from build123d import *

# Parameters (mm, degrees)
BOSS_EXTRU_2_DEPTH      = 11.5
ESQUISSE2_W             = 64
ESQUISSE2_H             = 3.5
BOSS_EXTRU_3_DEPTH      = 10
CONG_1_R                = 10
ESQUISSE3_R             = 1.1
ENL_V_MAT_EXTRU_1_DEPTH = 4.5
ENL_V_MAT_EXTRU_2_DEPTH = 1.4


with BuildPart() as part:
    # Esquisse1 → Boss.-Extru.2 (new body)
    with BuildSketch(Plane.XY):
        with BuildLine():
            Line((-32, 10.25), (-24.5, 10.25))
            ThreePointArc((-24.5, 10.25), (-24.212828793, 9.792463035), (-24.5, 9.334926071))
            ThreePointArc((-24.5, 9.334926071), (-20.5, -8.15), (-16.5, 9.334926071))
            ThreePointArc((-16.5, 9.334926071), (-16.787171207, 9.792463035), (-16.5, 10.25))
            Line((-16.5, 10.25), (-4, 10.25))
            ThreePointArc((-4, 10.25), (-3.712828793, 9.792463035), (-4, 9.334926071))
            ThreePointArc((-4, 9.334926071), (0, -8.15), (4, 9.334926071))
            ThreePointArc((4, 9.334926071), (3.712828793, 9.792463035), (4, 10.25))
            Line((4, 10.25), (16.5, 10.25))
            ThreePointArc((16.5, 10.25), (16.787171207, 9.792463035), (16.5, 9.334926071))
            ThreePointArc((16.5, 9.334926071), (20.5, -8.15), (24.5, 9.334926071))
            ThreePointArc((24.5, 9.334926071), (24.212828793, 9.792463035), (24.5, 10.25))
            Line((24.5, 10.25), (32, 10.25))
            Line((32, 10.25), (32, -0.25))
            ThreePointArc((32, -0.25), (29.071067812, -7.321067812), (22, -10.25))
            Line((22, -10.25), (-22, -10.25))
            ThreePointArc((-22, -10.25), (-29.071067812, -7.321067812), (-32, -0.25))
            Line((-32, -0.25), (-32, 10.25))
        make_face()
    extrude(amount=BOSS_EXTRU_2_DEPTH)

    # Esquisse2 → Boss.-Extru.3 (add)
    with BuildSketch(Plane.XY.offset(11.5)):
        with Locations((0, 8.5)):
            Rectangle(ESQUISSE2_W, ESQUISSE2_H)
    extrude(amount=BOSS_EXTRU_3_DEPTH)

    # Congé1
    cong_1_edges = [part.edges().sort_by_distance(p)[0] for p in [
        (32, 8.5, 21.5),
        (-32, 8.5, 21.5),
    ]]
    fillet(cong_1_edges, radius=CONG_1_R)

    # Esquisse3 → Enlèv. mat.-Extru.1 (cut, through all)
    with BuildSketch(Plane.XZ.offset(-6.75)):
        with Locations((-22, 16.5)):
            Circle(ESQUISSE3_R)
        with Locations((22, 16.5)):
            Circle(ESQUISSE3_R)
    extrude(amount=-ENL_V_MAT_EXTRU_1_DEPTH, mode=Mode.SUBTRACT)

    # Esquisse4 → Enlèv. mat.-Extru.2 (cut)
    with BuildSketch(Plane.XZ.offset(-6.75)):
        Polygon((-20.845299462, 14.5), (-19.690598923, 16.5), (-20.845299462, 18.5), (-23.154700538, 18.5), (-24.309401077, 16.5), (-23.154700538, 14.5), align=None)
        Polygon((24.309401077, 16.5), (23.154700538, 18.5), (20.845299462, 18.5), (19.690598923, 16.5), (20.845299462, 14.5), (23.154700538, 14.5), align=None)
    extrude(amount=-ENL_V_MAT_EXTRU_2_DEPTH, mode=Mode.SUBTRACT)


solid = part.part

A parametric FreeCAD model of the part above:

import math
import FreeCAD as App
import Part
import Sketcher

V = App.Vector
Q = App.Units.Quantity


def edges_at(feature, points):
    """Names of the edges that pass closest to the given points."""
    edges = feature.Shape.Edges
    near = lambda p: min(range(len(edges)), key=lambda i: edges[i].distToShape(Part.Vertex(*p))[0])
    return sorted({f"Edge{near(p) + 1}" for p in points})


def add_polygon(sketch, points):
    """Adds a closed chain of lines whose ends are joined by coincident constraints."""
    first, n = sketch.GeometryCount, len(points)
    for a, b in zip(points, points[1:] + points[:1]):
        sketch.addGeometry(Part.LineSegment(App.Vector(*a, 0), App.Vector(*b, 0)), False)
    for i in range(n):
        sketch.addConstraint(Sketcher.Constraint("Coincident", first + i, 2, first + (i + 1) % n, 1))

doc = App.newDocument("Part")
body = doc.addObject("PartDesign::Body", "Body")

sketch1 = body.newObject("Sketcher::SketchObject", "Sketch")
sketch1.AttachmentSupport = (doc.getObject("XY_Plane"), [""])
sketch1.MapMode = "FlatFace"
sketch1.addGeometry([
    Part.LineSegment(V(-24.5, 10.25, 0), V(-32, 10.25, 0)),
    Part.LineSegment(V(-32, 10.25, 0), V(-32, -0.25, 0)),
    Part.ArcOfCircle(Part.Circle(V(-22, -0.25, 0), V(0, 0, 1), 10), math.radians(180), math.radians(270)),
    Part.LineSegment(V(-22, -10.25, 0), V(22, -10.25, 0)),
    Part.ArcOfCircle(Part.Circle(V(22, -0.25, 0), V(0, 0, 1), 10), math.radians(-90), math.radians(0)),
    Part.LineSegment(V(32, -0.25, 0), V(32, 10.25, 0)),
    Part.LineSegment(V(32, 10.25, 0), V(24.5, 10.25, 0)),
    Part.ArcOfCircle(Part.Circle(V(24.720901, 9.792463, 0), V(0, 0, 1), 0.508072), math.radians(115.771462), math.radians(244.228538)),
    Part.ArcOfCircle(Part.Circle(V(20.5, 1.05, 0), V(0, 0, 1), 9.2), math.radians(115.771462), math.radians(424.228538)),
    Part.ArcOfCircle(Part.Circle(V(16.279099, 9.792463, 0), V(0, 0, 1), 0.508072), math.radians(-64.228538), math.radians(64.228538)),
    Part.LineSegment(V(16.5, 10.25, 0), V(4, 10.25, 0)),
    Part.ArcOfCircle(Part.Circle(V(4.220901, 9.792463, 0), V(0, 0, 1), 0.508072), math.radians(115.771462), math.radians(244.228538)),
    Part.ArcOfCircle(Part.Circle(V(0, 1.05, 0), V(0, 0, 1), 9.2), math.radians(115.771462), math.radians(424.228538)),
    Part.ArcOfCircle(Part.Circle(V(-4.220901, 9.792463, 0), V(0, 0, 1), 0.508072), math.radians(-64.228538), math.radians(64.228538)),
    Part.LineSegment(V(-4, 10.25, 0), V(-16.5, 10.25, 0)),
    Part.ArcOfCircle(Part.Circle(V(-16.279099, 9.792463, 0), V(0, 0, 1), 0.508072), math.radians(115.771462), math.radians(244.228538)),
    Part.ArcOfCircle(Part.Circle(V(-20.5, 1.05, 0), V(0, 0, 1), 9.2), math.radians(115.771462), math.radians(424.228538)),
    Part.ArcOfCircle(Part.Circle(V(-24.720901, 9.792463, 0), V(0, 0, 1), 0.508072), math.radians(-64.228538), math.radians(64.228538)),
], False)
sketch1.addConstraint([
    Sketcher.Constraint("Coincident", 0, 2, 1, 1),
    Sketcher.Constraint("Tangent", 1, 2, 2, 1),
    Sketcher.Constraint("Tangent", 2, 2, 3, 1),
    Sketcher.Constraint("Tangent", 3, 2, 4, 1),
    Sketcher.Constraint("Tangent", 4, 2, 5, 1),
    Sketcher.Constraint("Coincident", 5, 2, 6, 1),
    Sketcher.Constraint("Coincident", 6, 2, 7, 1),
    Sketcher.Constraint("Tangent", 7, 2, 8, 2),
    Sketcher.Constraint("Tangent", 8, 1, 9, 1),
    Sketcher.Constraint("Coincident", 9, 2, 10, 1),
    Sketcher.Constraint("Coincident", 10, 2, 11, 1),
    Sketcher.Constraint("Tangent", 11, 2, 12, 2),
    Sketcher.Constraint("Tangent", 12, 1, 13, 1),
    Sketcher.Constraint("Coincident", 13, 2, 14, 1),
    Sketcher.Constraint("Coincident", 14, 2, 15, 1),
    Sketcher.Constraint("Tangent", 15, 2, 16, 2),
    Sketcher.Constraint("Tangent", 16, 1, 17, 1),
    Sketcher.Constraint("Coincident", 17, 2, 0, 1),
    Sketcher.Constraint("Horizontal", 0),
    Sketcher.Constraint("Vertical", 1),
    Sketcher.Constraint("Horizontal", 3),
    Sketcher.Constraint("Vertical", 5),
    Sketcher.Constraint("Horizontal", 6),
    Sketcher.Constraint("Horizontal", 10),
    Sketcher.Constraint("Horizontal", 14),
    Sketcher.Constraint("Equal", 2, 4),
    Sketcher.Constraint("Equal", 7, 9),
    Sketcher.Constraint("Equal", 9, 11),
    Sketcher.Constraint("Equal", 8, 12),
    Sketcher.Constraint("Equal", 11, 13),
    Sketcher.Constraint("Equal", 13, 15),
    Sketcher.Constraint("Equal", 12, 16),
    Sketcher.Constraint("Equal", 15, 17),
    Sketcher.Constraint("Symmetric", 11, 3, 13, 3, -2),
    Sketcher.Constraint("Symmetric", 9, 3, 15, 3, -2),
    Sketcher.Constraint("Symmetric", 7, 3, 17, 3, -2),
    Sketcher.Constraint("Symmetric", 0, 2, 5, 2, -2),
    Sketcher.Constraint("Horizontal", 7, 3, 9, 3),
    Sketcher.Constraint("Horizontal", 9, 3, 11, 3),
    Sketcher.Constraint("Horizontal", 8, 3, 12, 3),
    Sketcher.Constraint("Horizontal", 6, 2, 9, 2),
    Sketcher.Constraint("Horizontal", 10, 2, 13, 2),
    Sketcher.Constraint("Vertical", 6, 2, 7, 2),
    Sketcher.Constraint("Radius", 2, 10.0),
    Sketcher.Constraint("Radius", 8, 9.2),
    Sketcher.Constraint("DistanceX", 3, 1, 3, 2, 44.0),
    Sketcher.Constraint("DistanceX", 0, 2, 0, 1, 7.5),
    Sketcher.Constraint("DistanceX", 10, 2, 10, 1, 12.5),
    Sketcher.Constraint("DistanceY", 1, 2, 1, 1, 10.5),
    Sketcher.Constraint("DistanceY", 4, 3, 8, 3, 1.3),
    Sketcher.Constraint("DistanceY", 2, 3, -1, 1, 0.25),
])
pad1 = body.newObject("PartDesign::Pad", "Pad")
pad1.Profile = sketch1
pad1.Length = 11.5

sketch2 = body.newObject("Sketcher::SketchObject", "Sketch001")
sketch2.AttachmentSupport = (doc.getObject("XY_Plane"), [""])
sketch2.MapMode = "FlatFace"
sketch2.AttachmentOffset = App.Placement(V(0, 0, 11.5), App.Rotation())
add_polygon(sketch2, [(-32, 10.25), (-32, 6.75), (32, 6.75), (32, 10.25)])
sketch2.addConstraint([
    Sketcher.Constraint("Vertical", 0),
    Sketcher.Constraint("Horizontal", 1),
    Sketcher.Constraint("Vertical", 2),
    Sketcher.Constraint("Horizontal", 3),
    Sketcher.Constraint("DistanceX", 1, 1, 1, 2, 64.0),
    Sketcher.Constraint("DistanceY", 0, 2, 0, 1, 3.5),
    Sketcher.Constraint("DistanceX", 0, 2, -1, 1, 32.0),
    Sketcher.Constraint("DistanceY", -1, 1, 0, 2, 6.75),
])
pad2 = body.newObject("PartDesign::Pad", "Pad001")
pad2.Profile = sketch2
pad2.Length = 10
doc.recompute()

fillet = body.newObject("PartDesign::Fillet", "Fillet")
fillet.Base = (pad2, edges_at(pad2, [(32, 8.5, 21.5), (-32, 8.5, 21.5)]))
fillet.Radius = 10

sketch3 = body.newObject("Sketcher::SketchObject", "Sketch002")
sketch3.AttachmentSupport = (doc.getObject("XZ_Plane"), [""])
sketch3.MapMode = "FlatFace"
sketch3.AttachmentOffset = App.Placement(V(0, 0, -6.75), App.Rotation())
sketch3.addGeometry([
    Part.Circle(V(-22, 16.5, 0), V(0, 0, 1), 1.1),
    Part.Circle(V(22, 16.5, 0), V(0, 0, 1), 1.1),
], False)
sketch3.addConstraint([
    Sketcher.Constraint("Equal", 0, 1),
    Sketcher.Constraint("Symmetric", 0, 3, 1, 3, -2),
    Sketcher.Constraint("Diameter", 0, 2.2),
    Sketcher.Constraint("DistanceX", 0, 3, -1, 1, 22.0),
    Sketcher.Constraint("DistanceY", -1, 1, 0, 3, 16.5),
])
pocket1 = body.newObject("PartDesign::Pocket", "Pocket")
pocket1.Profile = sketch3
pocket1.Type = "ThroughAll"

sketch4 = body.newObject("Sketcher::SketchObject", "Sketch003")
sketch4.AttachmentSupport = (doc.getObject("XZ_Plane"), [""])
sketch4.MapMode = "FlatFace"
sketch4.AttachmentOffset = App.Placement(V(0, 0, -6.75), App.Rotation())
add_polygon(sketch4, [(-20.845299, 14.5), (-19.690599, 16.5), (-20.845299, 18.5), (-23.154701, 18.5), (-24.309401, 16.5), (-23.154701, 14.5)])
add_polygon(sketch4, [(24.309401, 16.5), (23.154701, 18.5), (20.845299, 18.5), (19.690599, 16.5), (20.845299, 14.5), (23.154701, 14.5)])
sketch4.addConstraint([
    Sketcher.Constraint("Horizontal", 2),
    Sketcher.Constraint("Horizontal", 5),
    Sketcher.Constraint("Horizontal", 7),
    Sketcher.Constraint("Horizontal", 10),
    Sketcher.Constraint("Symmetric", 2, 2, 6, 2, -2),
    Sketcher.Constraint("Symmetric", 0, 2, 8, 2, -2),
    Sketcher.Constraint("Symmetric", 5, 2, 9, 2, -2),
    Sketcher.Constraint("Symmetric", 3, 2, 11, 2, -2),
    Sketcher.Constraint("Parallel", 0, 3),
    Sketcher.Constraint("Parallel", 1, 4),
    Sketcher.Constraint("Parallel", 4, 6),
    Sketcher.Constraint("Parallel", 3, 8),
    Sketcher.Constraint("Parallel", 8, 11),
    Sketcher.Constraint("Horizontal", 0, 2, 3, 2),
    Sketcher.Constraint("Vertical", 2, 2, 4, 2),
    Sketcher.Constraint("Angle", 0, Q("60 deg")),
    Sketcher.Constraint("DistanceY", 0, 2, 1, 2, 2.0),
    Sketcher.Constraint("DistanceX", 1, 2, 6, 2, 44.0),
    Sketcher.Constraint("DistanceY", -1, 1, 0, 2, 16.5),
    Sketcher.Constraint("DistanceX", 2, 2, 2, 1, 2.309401),
])
pocket2 = body.newObject("PartDesign::Pocket", "Pocket001")
pocket2.Profile = sketch4
pocket2.Length = 1.4

doc.recompute()
